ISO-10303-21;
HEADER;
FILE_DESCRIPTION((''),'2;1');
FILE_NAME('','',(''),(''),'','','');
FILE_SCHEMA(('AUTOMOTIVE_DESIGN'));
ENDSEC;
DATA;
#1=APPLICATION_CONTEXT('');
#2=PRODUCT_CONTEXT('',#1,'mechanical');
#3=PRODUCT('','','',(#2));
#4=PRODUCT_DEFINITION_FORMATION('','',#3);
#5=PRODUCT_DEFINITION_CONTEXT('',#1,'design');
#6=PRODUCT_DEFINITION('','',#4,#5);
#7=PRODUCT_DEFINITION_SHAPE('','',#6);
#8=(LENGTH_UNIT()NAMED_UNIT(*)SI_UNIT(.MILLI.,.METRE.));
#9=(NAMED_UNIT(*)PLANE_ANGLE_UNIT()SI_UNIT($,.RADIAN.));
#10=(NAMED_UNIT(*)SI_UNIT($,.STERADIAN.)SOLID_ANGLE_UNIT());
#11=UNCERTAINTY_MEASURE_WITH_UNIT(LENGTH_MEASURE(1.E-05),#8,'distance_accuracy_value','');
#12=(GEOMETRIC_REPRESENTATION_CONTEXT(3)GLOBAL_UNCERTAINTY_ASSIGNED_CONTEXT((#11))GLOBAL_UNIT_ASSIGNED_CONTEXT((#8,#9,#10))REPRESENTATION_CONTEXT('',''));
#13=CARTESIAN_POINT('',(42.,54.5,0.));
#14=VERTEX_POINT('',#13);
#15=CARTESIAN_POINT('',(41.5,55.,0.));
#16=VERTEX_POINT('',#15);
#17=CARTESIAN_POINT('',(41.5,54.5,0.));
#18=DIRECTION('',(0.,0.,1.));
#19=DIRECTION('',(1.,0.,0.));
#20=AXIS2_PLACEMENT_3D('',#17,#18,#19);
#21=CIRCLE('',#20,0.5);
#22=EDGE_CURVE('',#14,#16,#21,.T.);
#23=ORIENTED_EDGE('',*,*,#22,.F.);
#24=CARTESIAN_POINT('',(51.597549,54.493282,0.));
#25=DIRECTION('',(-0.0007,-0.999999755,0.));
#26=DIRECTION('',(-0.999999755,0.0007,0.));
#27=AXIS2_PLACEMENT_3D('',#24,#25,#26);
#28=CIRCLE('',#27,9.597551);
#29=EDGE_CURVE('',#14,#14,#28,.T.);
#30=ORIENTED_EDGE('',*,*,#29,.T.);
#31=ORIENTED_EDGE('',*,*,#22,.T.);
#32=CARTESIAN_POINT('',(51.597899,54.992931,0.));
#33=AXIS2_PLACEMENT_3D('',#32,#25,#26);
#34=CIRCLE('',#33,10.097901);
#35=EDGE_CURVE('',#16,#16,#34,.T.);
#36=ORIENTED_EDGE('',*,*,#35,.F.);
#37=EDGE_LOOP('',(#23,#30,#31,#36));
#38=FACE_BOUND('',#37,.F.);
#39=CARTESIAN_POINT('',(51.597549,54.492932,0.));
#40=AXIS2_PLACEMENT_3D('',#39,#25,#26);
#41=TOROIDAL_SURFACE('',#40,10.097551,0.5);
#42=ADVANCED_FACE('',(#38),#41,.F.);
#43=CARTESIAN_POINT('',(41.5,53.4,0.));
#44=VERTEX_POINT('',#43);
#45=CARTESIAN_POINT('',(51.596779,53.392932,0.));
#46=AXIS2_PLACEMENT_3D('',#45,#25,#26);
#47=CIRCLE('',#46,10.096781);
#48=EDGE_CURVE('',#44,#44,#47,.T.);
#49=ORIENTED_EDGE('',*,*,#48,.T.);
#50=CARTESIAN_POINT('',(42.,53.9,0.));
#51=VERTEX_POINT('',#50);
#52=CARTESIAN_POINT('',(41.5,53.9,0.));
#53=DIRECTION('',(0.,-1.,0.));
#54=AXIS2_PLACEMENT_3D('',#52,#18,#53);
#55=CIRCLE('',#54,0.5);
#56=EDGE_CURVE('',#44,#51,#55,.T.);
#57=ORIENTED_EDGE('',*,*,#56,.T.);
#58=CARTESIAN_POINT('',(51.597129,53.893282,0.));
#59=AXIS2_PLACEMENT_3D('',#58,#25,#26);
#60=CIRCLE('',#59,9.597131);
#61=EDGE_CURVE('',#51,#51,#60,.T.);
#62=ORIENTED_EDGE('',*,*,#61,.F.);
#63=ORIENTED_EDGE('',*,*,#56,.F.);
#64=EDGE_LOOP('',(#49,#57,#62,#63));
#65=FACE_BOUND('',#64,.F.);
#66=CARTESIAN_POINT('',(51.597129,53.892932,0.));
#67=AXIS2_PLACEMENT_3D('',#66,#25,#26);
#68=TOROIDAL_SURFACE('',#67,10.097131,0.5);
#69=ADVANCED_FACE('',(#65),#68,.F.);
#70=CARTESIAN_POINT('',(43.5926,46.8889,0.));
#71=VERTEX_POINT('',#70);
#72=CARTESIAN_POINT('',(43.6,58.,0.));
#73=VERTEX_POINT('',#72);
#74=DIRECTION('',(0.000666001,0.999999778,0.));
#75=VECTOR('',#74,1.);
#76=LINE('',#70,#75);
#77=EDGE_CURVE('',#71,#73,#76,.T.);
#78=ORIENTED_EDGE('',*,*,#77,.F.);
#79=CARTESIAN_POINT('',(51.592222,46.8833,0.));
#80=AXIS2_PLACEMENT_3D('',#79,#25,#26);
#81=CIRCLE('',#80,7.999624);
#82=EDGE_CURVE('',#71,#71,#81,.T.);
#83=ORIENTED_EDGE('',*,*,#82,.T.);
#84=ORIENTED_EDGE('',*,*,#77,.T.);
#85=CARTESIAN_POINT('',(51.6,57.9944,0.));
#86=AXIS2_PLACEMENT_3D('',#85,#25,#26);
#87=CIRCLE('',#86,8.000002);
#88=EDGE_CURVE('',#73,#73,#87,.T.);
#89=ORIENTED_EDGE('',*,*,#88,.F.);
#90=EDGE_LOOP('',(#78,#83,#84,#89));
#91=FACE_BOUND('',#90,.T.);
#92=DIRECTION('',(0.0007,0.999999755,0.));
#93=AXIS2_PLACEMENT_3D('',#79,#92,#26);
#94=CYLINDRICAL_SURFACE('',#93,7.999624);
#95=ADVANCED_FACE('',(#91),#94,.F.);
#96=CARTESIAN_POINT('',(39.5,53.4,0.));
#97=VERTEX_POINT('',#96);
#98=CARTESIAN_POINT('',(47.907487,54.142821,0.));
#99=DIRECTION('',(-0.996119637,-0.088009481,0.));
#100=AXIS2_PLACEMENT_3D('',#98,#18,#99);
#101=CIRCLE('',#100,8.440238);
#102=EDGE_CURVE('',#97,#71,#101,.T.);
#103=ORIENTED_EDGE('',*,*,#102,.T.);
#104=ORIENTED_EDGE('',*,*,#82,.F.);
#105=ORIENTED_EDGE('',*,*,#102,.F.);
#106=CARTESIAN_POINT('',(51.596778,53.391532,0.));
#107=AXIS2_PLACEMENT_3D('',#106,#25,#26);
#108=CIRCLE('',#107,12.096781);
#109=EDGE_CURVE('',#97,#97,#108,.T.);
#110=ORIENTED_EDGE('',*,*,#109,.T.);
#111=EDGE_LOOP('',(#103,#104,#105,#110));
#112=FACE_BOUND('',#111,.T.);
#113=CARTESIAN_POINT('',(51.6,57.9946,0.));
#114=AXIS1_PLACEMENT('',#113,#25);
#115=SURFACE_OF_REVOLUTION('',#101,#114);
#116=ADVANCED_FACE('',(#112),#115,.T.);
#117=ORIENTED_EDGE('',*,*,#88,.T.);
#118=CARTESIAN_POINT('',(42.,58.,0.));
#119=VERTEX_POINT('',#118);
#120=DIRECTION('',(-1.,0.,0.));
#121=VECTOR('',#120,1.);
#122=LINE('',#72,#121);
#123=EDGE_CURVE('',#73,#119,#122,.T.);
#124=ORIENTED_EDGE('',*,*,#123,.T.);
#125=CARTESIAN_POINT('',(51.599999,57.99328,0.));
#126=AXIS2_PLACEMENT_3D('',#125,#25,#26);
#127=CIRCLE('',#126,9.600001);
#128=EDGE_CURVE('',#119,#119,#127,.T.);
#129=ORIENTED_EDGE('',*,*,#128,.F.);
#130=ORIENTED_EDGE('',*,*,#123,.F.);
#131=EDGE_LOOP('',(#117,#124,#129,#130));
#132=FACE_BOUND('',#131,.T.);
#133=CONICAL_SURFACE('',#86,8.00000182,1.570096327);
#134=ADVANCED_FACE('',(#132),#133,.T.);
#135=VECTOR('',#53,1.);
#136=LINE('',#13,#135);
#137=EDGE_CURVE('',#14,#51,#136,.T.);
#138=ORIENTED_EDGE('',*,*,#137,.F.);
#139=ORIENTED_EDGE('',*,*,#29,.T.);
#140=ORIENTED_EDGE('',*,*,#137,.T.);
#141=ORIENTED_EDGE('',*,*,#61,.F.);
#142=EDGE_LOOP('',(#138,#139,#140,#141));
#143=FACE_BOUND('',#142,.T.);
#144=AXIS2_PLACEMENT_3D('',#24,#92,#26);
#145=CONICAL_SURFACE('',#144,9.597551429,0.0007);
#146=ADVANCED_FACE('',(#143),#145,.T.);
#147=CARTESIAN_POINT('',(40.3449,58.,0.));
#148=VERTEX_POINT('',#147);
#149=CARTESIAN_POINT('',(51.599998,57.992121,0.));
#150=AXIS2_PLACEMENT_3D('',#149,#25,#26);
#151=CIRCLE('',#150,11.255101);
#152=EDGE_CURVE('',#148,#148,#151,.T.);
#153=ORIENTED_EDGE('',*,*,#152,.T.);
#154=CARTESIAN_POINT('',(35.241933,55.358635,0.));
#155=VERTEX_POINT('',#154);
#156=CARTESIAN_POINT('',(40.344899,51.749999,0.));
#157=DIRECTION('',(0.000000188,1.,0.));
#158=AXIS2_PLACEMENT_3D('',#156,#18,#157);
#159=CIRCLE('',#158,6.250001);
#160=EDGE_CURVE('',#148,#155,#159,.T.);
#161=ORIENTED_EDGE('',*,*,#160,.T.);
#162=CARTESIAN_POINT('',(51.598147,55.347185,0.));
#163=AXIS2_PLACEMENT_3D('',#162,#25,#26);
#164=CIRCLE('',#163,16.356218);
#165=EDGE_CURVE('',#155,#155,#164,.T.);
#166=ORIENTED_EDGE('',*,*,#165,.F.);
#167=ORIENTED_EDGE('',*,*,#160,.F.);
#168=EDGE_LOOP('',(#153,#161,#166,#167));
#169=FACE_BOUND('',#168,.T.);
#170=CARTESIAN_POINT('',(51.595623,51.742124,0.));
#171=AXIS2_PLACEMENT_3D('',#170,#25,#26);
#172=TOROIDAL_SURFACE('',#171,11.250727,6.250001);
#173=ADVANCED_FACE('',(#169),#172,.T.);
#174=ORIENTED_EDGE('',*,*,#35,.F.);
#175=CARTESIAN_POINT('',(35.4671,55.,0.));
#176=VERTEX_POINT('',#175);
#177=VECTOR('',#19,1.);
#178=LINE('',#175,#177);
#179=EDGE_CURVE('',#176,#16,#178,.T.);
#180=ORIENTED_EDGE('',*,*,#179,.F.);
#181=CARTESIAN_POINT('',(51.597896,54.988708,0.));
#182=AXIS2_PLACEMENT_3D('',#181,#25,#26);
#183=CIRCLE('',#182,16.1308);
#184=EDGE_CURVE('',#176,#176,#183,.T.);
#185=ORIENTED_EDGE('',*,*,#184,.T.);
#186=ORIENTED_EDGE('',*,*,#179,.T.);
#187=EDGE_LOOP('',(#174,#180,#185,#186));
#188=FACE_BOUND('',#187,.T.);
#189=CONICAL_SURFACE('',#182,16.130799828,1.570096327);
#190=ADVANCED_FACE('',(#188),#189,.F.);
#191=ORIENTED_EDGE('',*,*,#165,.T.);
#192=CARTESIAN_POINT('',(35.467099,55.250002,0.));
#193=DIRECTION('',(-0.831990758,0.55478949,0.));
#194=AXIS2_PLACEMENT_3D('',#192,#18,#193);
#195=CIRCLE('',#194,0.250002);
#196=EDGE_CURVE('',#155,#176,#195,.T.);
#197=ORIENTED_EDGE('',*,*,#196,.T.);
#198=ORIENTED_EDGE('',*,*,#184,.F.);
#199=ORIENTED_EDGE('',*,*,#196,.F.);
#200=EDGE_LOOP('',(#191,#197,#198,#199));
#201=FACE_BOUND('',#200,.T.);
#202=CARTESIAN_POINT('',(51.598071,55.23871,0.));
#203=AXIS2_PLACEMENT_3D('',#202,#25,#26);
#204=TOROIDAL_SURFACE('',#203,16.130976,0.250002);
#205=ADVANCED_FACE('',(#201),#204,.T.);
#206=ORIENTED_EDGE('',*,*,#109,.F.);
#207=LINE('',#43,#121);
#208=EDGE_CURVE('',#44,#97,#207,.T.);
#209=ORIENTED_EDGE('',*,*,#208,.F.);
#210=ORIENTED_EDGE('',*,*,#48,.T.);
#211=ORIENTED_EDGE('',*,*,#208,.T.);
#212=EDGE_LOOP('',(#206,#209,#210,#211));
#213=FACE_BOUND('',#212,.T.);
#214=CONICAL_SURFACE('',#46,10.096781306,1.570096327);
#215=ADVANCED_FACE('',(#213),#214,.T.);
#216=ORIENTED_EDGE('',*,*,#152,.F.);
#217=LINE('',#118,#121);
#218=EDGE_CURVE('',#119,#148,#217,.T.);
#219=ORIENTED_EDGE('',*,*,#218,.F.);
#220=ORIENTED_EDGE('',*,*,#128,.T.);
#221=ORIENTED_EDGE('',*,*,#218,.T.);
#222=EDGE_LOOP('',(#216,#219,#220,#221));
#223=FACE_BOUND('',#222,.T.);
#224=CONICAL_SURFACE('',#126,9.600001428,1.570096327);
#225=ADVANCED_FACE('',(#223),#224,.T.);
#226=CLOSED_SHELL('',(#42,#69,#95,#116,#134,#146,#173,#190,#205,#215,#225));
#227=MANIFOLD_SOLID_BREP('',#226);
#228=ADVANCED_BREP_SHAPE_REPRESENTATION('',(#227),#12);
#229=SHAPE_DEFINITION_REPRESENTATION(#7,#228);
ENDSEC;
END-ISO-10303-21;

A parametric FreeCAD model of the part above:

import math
import FreeCAD as App
import Part
import Sketcher
Q = App.Units.Quantity

doc = App.newDocument("Part")
body = doc.addObject("PartDesign::Body", "Body")

sketch1 = doc.addObject("Sketcher::SketchObject", "Sketch")
body.addObject(sketch1)
sketch1.AttachmentSupport = (doc.XY_Plane, [""])
sketch1.MapMode = "FlatFace"
sketch1.addGeometry([
    Part.LineSegment(App.Vector(43.5926, 46.8889, 0), App.Vector(43.6, 58, 0)),
    Part.LineSegment(App.Vector(43.6, 58, 0), App.Vector(40.3449, 58, 0)),
    Part.ArcOfCircle(Part.Circle(App.Vector(40.3449, 51.75, 0), App.Vector(0, 0, 1), 6.25), math.radians(90), math.radians(144.733448)),
    Part.ArcOfCircle(Part.Circle(App.Vector(35.4671, 55.25, 0), App.Vector(0, 0, 1), 0.250003), math.radians(154.245017), math.radians(270)),
    Part.LineSegment(App.Vector(35.4671, 55, 0), App.Vector(41.5, 55, 0)),
    Part.ArcOfCircle(Part.Circle(App.Vector(41.5, 54.5, 0), App.Vector(0, 0, 1), 0.5), math.radians(0), math.radians(90)),
    Part.LineSegment(App.Vector(42, 54.5, 0), App.Vector(42, 53.9, 0)),
    Part.ArcOfCircle(Part.Circle(App.Vector(41.5, 53.9, 0), App.Vector(0, 0, 1), 0.5), math.radians(-90), math.radians(0)),
    Part.LineSegment(App.Vector(41.5, 53.4, 0), App.Vector(39.5, 53.4, 0)),
    Part.ArcOfCircle(Part.Circle(App.Vector(47.9075, 54.1428, 0), App.Vector(0, 0, 1), 8.440249), math.radians(-174.951045), math.radians(-120.745817)),
], False)
sketch1.addGeometry(Part.LineSegment(App.Vector(51.6, 57.9944, 0), App.Vector(51.592222, 46.8833, 0)), True)
sketch1.addConstraint([
    Sketcher.Constraint("Coincident", 0, 2, 1, 1),
    Sketcher.Constraint("Tangent", 1, 2, 2, 1),
    Sketcher.Constraint("Coincident", 2, 2, 3, 1),
    Sketcher.Constraint("Tangent", 3, 2, 4, 1),
    Sketcher.Constraint("Tangent", 4, 2, 5, 2),
    Sketcher.Constraint("Tangent", 5, 1, 6, 1),
    Sketcher.Constraint("Tangent", 6, 2, 7, 2),
    Sketcher.Constraint("Tangent", 7, 1, 8, 1),
    Sketcher.Constraint("Coincident", 8, 2, 9, 1),
    Sketcher.Constraint("Coincident", 9, 2, 0, 1),
    Sketcher.Constraint("Horizontal", 1),
    Sketcher.Constraint("Horizontal", 4),
    Sketcher.Constraint("Vertical", 6),
    Sketcher.Constraint("Horizontal", 8),
    Sketcher.Constraint("Equal", 5, 7),
    Sketcher.Constraint("Parallel", 0, 10),
    Sketcher.Constraint("Equal", 0, 10),
    Sketcher.Constraint("Radius", 5, Q("0.5 mm")),
    Sketcher.Constraint("Radius", 2, Q("6.25 mm")),
    Sketcher.Constraint("Radius", 3, Q("0.25 mm")),
    Sketcher.Constraint("DistanceY", 3, 2, 1, 2, Q("3 mm")),
    Sketcher.Constraint("DistanceX", 0, 2, 10, 1, Q("8 mm")),
    Sketcher.Constraint("DistanceX", 5, 1, 0, 2, Q("1.6 mm")),
    Sketcher.Constraint("DistanceY", 7, 1, 4, 2, Q("1.6 mm")),
    Sketcher.Constraint("DistanceX", 8, 2, 8, 1, Q("2 mm")),
    Sketcher.Constraint("DistanceY", -1, 1, 0, 2, Q("58 mm")),
    Sketcher.Constraint("DistanceX", -1, 1, 5, 1, Q("42 mm")),
    Sketcher.Constraint("Angle", 10, Q("-90.04 deg")),
    Sketcher.Constraint("Radius", 9, Q("8.4402 mm")),
    Sketcher.Constraint("DistanceX", 1, 2, 1, 1, Q("3.255 mm")),
    Sketcher.Constraint("DistanceX", 4, 1, 4, 2, Q("6.033 mm")),
    Sketcher.Constraint("Distance", 0, Q("11.111 mm")),
    Sketcher.Constraint("DistanceY", -1, 1, 10, 1, Q("57.9944 mm")),
])
revolution = doc.addObject("PartDesign::Revolution", "Revolution")
body.addObject(revolution)
revolution.Profile = sketch1
revolution.ReferenceAxis = (sketch1, ["Axis0"])
revolution.Angle = 360

doc.recompute()
